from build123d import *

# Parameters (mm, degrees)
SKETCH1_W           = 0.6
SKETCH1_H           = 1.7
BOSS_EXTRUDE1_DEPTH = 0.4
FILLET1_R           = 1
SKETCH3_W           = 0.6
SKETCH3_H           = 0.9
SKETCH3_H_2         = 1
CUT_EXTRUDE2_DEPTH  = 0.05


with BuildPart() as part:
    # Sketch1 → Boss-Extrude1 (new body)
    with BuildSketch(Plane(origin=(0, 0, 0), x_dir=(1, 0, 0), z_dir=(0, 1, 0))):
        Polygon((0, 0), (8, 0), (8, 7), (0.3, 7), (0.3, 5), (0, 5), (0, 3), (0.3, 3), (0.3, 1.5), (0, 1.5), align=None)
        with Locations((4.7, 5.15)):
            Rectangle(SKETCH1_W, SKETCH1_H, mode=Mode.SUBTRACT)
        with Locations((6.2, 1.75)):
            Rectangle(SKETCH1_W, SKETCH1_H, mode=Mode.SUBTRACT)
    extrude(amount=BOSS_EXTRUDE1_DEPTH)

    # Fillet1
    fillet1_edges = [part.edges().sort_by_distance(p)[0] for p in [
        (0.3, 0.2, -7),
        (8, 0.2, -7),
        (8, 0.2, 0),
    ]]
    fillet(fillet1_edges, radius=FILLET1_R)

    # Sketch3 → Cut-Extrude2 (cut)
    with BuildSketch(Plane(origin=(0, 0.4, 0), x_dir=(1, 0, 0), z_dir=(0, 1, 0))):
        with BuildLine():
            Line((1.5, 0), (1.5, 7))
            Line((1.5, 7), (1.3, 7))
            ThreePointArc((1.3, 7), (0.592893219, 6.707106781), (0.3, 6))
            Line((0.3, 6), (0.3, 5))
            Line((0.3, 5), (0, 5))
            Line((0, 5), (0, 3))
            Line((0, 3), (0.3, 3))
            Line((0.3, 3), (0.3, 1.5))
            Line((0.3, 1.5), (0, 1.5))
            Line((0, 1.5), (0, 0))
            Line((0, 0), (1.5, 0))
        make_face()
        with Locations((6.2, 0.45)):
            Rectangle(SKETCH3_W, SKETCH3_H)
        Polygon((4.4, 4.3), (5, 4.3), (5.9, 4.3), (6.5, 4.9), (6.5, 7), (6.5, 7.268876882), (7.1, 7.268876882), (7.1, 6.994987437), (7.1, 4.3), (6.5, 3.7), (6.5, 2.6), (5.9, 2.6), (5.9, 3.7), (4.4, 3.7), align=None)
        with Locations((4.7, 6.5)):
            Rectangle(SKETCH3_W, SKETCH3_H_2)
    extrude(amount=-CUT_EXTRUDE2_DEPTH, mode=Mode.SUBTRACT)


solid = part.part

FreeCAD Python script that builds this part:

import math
import FreeCAD as App
import Part
import Sketcher
from FreeCAD import Vector
Q = App.Units.Quantity


def edges_at(feature, points):
    """Names of the edges that pass closest to the given points."""
    edges = feature.Shape.Edges
    near = lambda p: min(range(len(edges)), key=lambda i: edges[i].distToShape(Part.Vertex(*p))[0])
    return sorted({f"Edge{near(p) + 1}" for p in points})

doc = App.newDocument("Part")
body = doc.addObject("PartDesign::Body", "Body")

sketch1 = doc.addObject("Sketcher::SketchObject", "Sketch")
body.addObject(sketch1)
sketch1.AttachmentSupport = (doc.XZ_Plane, [""])
sketch1.MapMode = "FlatFace"
sketch1.addGeometry(Part.LineSegment(Vector(0, 0, 0), Vector(8, 0, 0)), False)
sketch1.addGeometry(Part.LineSegment(Vector(8, 0, 0), Vector(8, -7, 0)), False)
sketch1.addGeometry(Part.LineSegment(Vector(8, -7, 0), Vector(0.3, -7, 0)), False)
sketch1.addGeometry(Part.LineSegment(Vector(0.3, -7, 0), Vector(0.3, -5, 0)), False)
sketch1.addGeometry(Part.LineSegment(Vector(0.3, -5, 0), Vector(0, -5, 0)), False)
sketch1.addGeometry(Part.LineSegment(Vector(0, -5, 0), Vector(0, -3, 0)), False)
sketch1.addGeometry(Part.LineSegment(Vector(0, -3, 0), Vector(0.3, -3, 0)), False)
sketch1.addGeometry(Part.LineSegment(Vector(0.3, -3, 0), Vector(0.3, -1.5, 0)), False)
sketch1.addGeometry(Part.LineSegment(Vector(0.3, -1.5, 0), Vector(0, -1.5, 0)), False)
sketch1.addGeometry(Part.LineSegment(Vector(0, -1.5, 0), Vector(0, 0, 0)), False)
sketch1.addGeometry(Part.LineSegment(Vector(6.5, -0.9, 0), Vector(5.9, -0.9, 0)), False)
sketch1.addGeometry(Part.LineSegment(Vector(5.9, -0.9, 0), Vector(5.9, -2.6, 0)), False)
sketch1.addGeometry(Part.LineSegment(Vector(5.9, -2.6, 0), Vector(6.5, -2.6, 0)), False)
sketch1.addGeometry(Part.LineSegment(Vector(6.5, -2.6, 0), Vector(6.5, -0.9, 0)), False)
sketch1.addGeometry(Part.LineSegment(Vector(5, -4.3, 0), Vector(4.4, -4.3, 0)), False)
sketch1.addGeometry(Part.LineSegment(Vector(4.4, -4.3, 0), Vector(4.4, -6, 0)), False)
sketch1.addGeometry(Part.LineSegment(Vector(4.4, -6, 0), Vector(5, -6, 0)), False)
sketch1.addGeometry(Part.LineSegment(Vector(5, -6, 0), Vector(5, -4.3, 0)), False)
sketch1.addConstraint(Sketcher.Constraint("Coincident", 0, 2, 1, 1))
sketch1.addConstraint(Sketcher.Constraint("Coincident", 1, 2, 2, 1))
sketch1.addConstraint(Sketcher.Constraint("Coincident", 2, 2, 3, 1))
sketch1.addConstraint(Sketcher.Constraint("Coincident", 3, 2, 4, 1))
sketch1.addConstraint(Sketcher.Constraint("Coincident", 4, 2, 5, 1))
sketch1.addConstraint(Sketcher.Constraint("Coincident", 5, 2, 6, 1))
sketch1.addConstraint(Sketcher.Constraint("Coincident", 6, 2, 7, 1))
sketch1.addConstraint(Sketcher.Constraint("Coincident", 7, 2, 8, 1))
sketch1.addConstraint(Sketcher.Constraint("Coincident", 8, 2, 9, 1))
sketch1.addConstraint(Sketcher.Constraint("Coincident", 9, 2, 0, 1))
sketch1.addConstraint(Sketcher.Constraint("Coincident", 10, 2, 11, 1))
sketch1.addConstraint(Sketcher.Constraint("Coincident", 11, 2, 12, 1))
sketch1.addConstraint(Sketcher.Constraint("Coincident", 12, 2, 13, 1))
sketch1.addConstraint(Sketcher.Constraint("Coincident", 13, 2, 10, 1))
sketch1.addConstraint(Sketcher.Constraint("Coincident", 14, 2, 15, 1))
sketch1.addConstraint(Sketcher.Constraint("Coincident", 15, 2, 16, 1))
sketch1.addConstraint(Sketcher.Constraint("Coincident", 16, 2, 17, 1))
sketch1.addConstraint(Sketcher.Constraint("Coincident", 17, 2, 14, 1))
sketch1.addConstraint(Sketcher.Constraint("Horizontal", 0))
sketch1.addConstraint(Sketcher.Constraint("Vertical", 1))
sketch1.addConstraint(Sketcher.Constraint("Horizontal", 2))
sketch1.addConstraint(Sketcher.Constraint("Vertical", 3))
sketch1.addConstraint(Sketcher.Constraint("Horizontal", 4))
sketch1.addConstraint(Sketcher.Constraint("Vertical", 5))
sketch1.addConstraint(Sketcher.Constraint("Horizontal", 6))
sketch1.addConstraint(Sketcher.Constraint("Vertical", 7))
sketch1.addConstraint(Sketcher.Constraint("Horizontal", 8))
sketch1.addConstraint(Sketcher.Constraint("Vertical", 9))
sketch1.addConstraint(Sketcher.Constraint("Horizontal", 10))
sketch1.addConstraint(Sketcher.Constraint("Vertical", 11))
sketch1.addConstraint(Sketcher.Constraint("Horizontal", 12))
sketch1.addConstraint(Sketcher.Constraint("Vertical", 13))
sketch1.addConstraint(Sketcher.Constraint("Horizontal", 14))
sketch1.addConstraint(Sketcher.Constraint("Vertical", 15))
sketch1.addConstraint(Sketcher.Constraint("Horizontal", 16))
sketch1.addConstraint(Sketcher.Constraint("Vertical", 17))
sketch1.addConstraint(Sketcher.Constraint("Coincident", 9, 2, -1, 1))
sketch1.addConstraint(Sketcher.Constraint("PointOnObject", 4, 2, -2))
sketch1.addConstraint(Sketcher.Constraint("Vertical", 3, 2, 6, 2))
sketch1.addConstraint(Sketcher.Constraint("Equal", 12, 14))
sketch1.addConstraint(Sketcher.Constraint("Equal", 3, 5))
sketch1.addConstraint(Sketcher.Constraint("Equal", 7, 9))
sketch1.addConstraint(Sketcher.Constraint("Equal", 13, 15))
sketch1.addConstraint(Sketcher.Constraint("DistanceX", 0, 1, 0, 2, Q("8 mm")))
sketch1.addConstraint(Sketcher.Constraint("DistanceY", 1, 2, 1, 1, Q("7 mm")))
sketch1.addConstraint(Sketcher.Constraint("DistanceY", 3, 1, 3, 2, Q("2 mm")))
sketch1.addConstraint(Sketcher.Constraint("DistanceX", 2, 2, 2, 1, Q("7.7 mm")))
sketch1.addConstraint(Sketcher.Constraint("DistanceX", 10, 2, 10, 1, Q("0.6 mm")))
sketch1.addConstraint(Sketcher.Constraint("DistanceY", 11, 2, 11, 1, Q("1.7 mm")))
sketch1.addConstraint(Sketcher.Constraint("DistanceY", 15, 2, -1, 1, Q("6 mm")))
sketch1.addConstraint(Sketcher.Constraint("DistanceX", -1, 1, 16, 2, Q("5 mm")))
sketch1.addConstraint(Sketcher.Constraint("DistanceX", -1, 1, 10, 2, Q("5.9 mm")))
sketch1.addConstraint(Sketcher.Constraint("DistanceY", 10, 2, -1, 1, Q("0.9 mm")))
pad1 = doc.addObject("PartDesign::Pad", "Pad")
body.addObject(pad1)
pad1.Profile = sketch1
pad1.Length = 0.4
pad1.Reversed = True
doc.recompute()

fillet = doc.addObject("PartDesign::Fillet", "Fillet")
body.addObject(fillet)
fillet.Base = (pad1, edges_at(pad1, [(0.3, 0.2, -7), (8, 0.2, -7), (8, 0.2, 0)]))
fillet.Radius = 1

sketch2 = doc.addObject("Sketcher::SketchObject", "Sketch001")
body.addObject(sketch2)
sketch2.AttachmentSupport = (doc.XZ_Plane, [""])
sketch2.MapMode = "FlatFace"
sketch2.AttachmentOffset = App.Placement(Vector(0, 0, -0.4), App.Rotation())
sketch2.addGeometry(Part.LineSegment(Vector(1.5, 0, 0), Vector(1.5, -7, 0)), False)
sketch2.addGeometry(Part.LineSegment(Vector(1.5, -7, 0), Vector(1.3, -7, 0)), False)
sketch2.addGeometry(Part.ArcOfCircle(Part.Circle(Vector(1.3, -6, 0), Vector(0, 0, 1), 1), math.radians(-180), math.radians(-90)), False)
sketch2.addGeometry(Part.LineSegment(Vector(0.3, -6, 0), Vector(0.3, -5, 0)), False)
sketch2.addGeometry(Part.LineSegment(Vector(0.3, -5, 0), Vector(0, -5, 0)), False)
sketch2.addGeometry(Part.LineSegment(Vector(0, -5, 0), Vector(0, -3, 0)), False)
sketch2.addGeometry(Part.LineSegment(Vector(0, -3, 0), Vector(0.3, -3, 0)), False)
sketch2.addGeometry(Part.LineSegment(Vector(0.3, -3, 0), Vector(0.3, -1.5, 0)), False)
sketch2.addGeometry(Part.LineSegment(Vector(0.3, -1.5, 0), Vector(0, -1.5, 0)), False)
sketch2.addGeometry(Part.LineSegment(Vector(0, -1.5, 0), Vector(0, 0, 0)), False)
sketch2.addGeometry(Part.LineSegment(Vector(0, 0, 0), Vector(1.5, 0, 0)), False)
sketch2.addGeometry(Part.LineSegment(Vector(5.9, -0.9, 0), Vector(5.9, 0, 0)), False)
sketch2.addGeometry(Part.LineSegment(Vector(5.9, 0, 0), Vector(6.5, 0, 0)), False)
sketch2.addGeometry(Part.LineSegment(Vector(6.5, 0, 0), Vector(6.5, -0.9, 0)), False)
sketch2.addGeometry(Part.LineSegment(Vector(6.5, -0.9, 0), Vector(5.9, -0.9, 0)), False)
sketch2.addGeometry(Part.LineSegment(Vector(5.9, -4.3, 0), Vector(4.4, -4.3, 0)), False)
sketch2.addGeometry(Part.LineSegment(Vector(4.4, -4.3, 0), Vector(4.4, -3.7, 0)), False)
sketch2.addGeometry(Part.LineSegment(Vector(4.4, -3.7, 0), Vector(5.9, -3.7, 0)), False)
sketch2.addGeometry(Part.LineSegment(Vector(5.9, -3.7, 0), Vector(5.9, -2.6, 0)), False)
sketch2.addGeometry(Part.LineSegment(Vector(5.9, -2.6, 0), Vector(6.5, -2.6, 0)), False)
sketch2.addGeometry(Part.LineSegment(Vector(6.5, -2.6, 0), Vector(6.5, -3.7, 0)), False)
sketch2.addGeometry(Part.LineSegment(Vector(6.5, -3.7, 0), Vector(7.1, -4.3, 0)), False)
sketch2.addGeometry(Part.LineSegment(Vector(7.1, -4.3, 0), Vector(7.1, -7.268877, 0)), False)
sketch2.addGeometry(Part.LineSegment(Vector(7.1, -7.268877, 0), Vector(6.5, -7.268877, 0)), False)
sketch2.addGeometry(Part.LineSegment(Vector(6.5, -7.268877, 0), Vector(6.5, -4.9, 0)), False)
sketch2.addGeometry(Part.LineSegment(Vector(6.5, -4.9, 0), Vector(5.9, -4.3, 0)), False)
sketch2.addGeometry(Part.LineSegment(Vector(4.4, -7, 0), Vector(4.4, -6, 0)), False)
sketch2.addGeometry(Part.LineSegment(Vector(4.4, -6, 0), Vector(5, -6, 0)), False)
sketch2.addGeometry(Part.LineSegment(Vector(5, -6, 0), Vector(5, -7, 0)), False)
sketch2.addGeometry(Part.LineSegment(Vector(5, -7, 0), Vector(4.4, -7, 0)), False)
sketch2.addConstraint(Sketcher.Constraint("Coincident", 0, 2, 1, 1))
sketch2.addConstraint(Sketcher.Constraint("Tangent", 1, 2, 2, 2))
sketch2.addConstraint(Sketcher.Constraint("Tangent", 2, 1, 3, 1))
sketch2.addConstraint(Sketcher.Constraint("Coincident", 3, 2, 4, 1))
sketch2.addConstraint(Sketcher.Constraint("Coincident", 4, 2, 5, 1))
sketch2.addConstraint(Sketcher.Constraint("Coincident", 5, 2, 6, 1))
sketch2.addConstraint(Sketcher.Constraint("Coincident", 6, 2, 7, 1))
sketch2.addConstraint(Sketcher.Constraint("Coincident", 7, 2, 8, 1))
sketch2.addConstraint(Sketcher.Constraint("Coincident", 8, 2, 9, 1))
sketch2.addConstraint(Sketcher.Constraint("Coincident", 9, 2, 10, 1))
sketch2.addConstraint(Sketcher.Constraint("Coincident", 10, 2, 0, 1))
sketch2.addConstraint(Sketcher.Constraint("Coincident", 11, 2, 12, 1))
sketch2.addConstraint(Sketcher.Constraint("Coincident", 12, 2, 13, 1))
sketch2.addConstraint(Sketcher.Constraint("Coincident", 13, 2, 14, 1))
sketch2.addConstraint(Sketcher.Constraint("Coincident", 14, 2, 11, 1))
sketch2.addConstraint(Sketcher.Constraint("Coincident", 15, 2, 16, 1))
sketch2.addConstraint(Sketcher.Constraint("Coincident", 16, 2, 17, 1))
sketch2.addConstraint(Sketcher.Constraint("Coincident", 17, 2, 18, 1))
sketch2.addConstraint(Sketcher.Constraint("Coincident", 18, 2, 19, 1))
sketch2.addConstraint(Sketcher.Constraint("Coincident", 19, 2, 20, 1))
sketch2.addConstraint(Sketcher.Constraint("Coincident", 20, 2, 21, 1))
sketch2.addConstraint(Sketcher.Constraint("Coincident", 21, 2, 22, 1))
sketch2.addConstraint(Sketcher.Constraint("Coincident", 22, 2, 23, 1))
sketch2.addConstraint(Sketcher.Constraint("Coincident", 23, 2, 24, 1))
sketch2.addConstraint(Sketcher.Constraint("Coincident", 24, 2, 25, 1))
sketch2.addConstraint(Sketcher.Constraint("Coincident", 25, 2, 15, 1))
sketch2.addConstraint(Sketcher.Constraint("Coincident", 26, 2, 27, 1))
sketch2.addConstraint(Sketcher.Constraint("Coincident", 27, 2, 28, 1))
sketch2.addConstraint(Sketcher.Constraint("Coincident", 28, 2, 29, 1))
sketch2.addConstraint(Sketcher.Constraint("Coincident", 29, 2, 26, 1))
sketch2.addConstraint(Sketcher.Constraint("Vertical", 0))
sketch2.addConstraint(Sketcher.Constraint("Horizontal", 1))
sketch2.addConstraint(Sketcher.Constraint("Vertical", 3))
sketch2.addConstraint(Sketcher.Constraint("Horizontal", 4))
sketch2.addConstraint(Sketcher.Constraint("Vertical", 5))
sketch2.addConstraint(Sketcher.Constraint("Horizontal", 6))
sketch2.addConstraint(Sketcher.Constraint("Vertical", 7))
sketch2.addConstraint(Sketcher.Constraint("Horizontal", 8))
sketch2.addConstraint(Sketcher.Constraint("Vertical", 9))
sketch2.addConstraint(Sketcher.Constraint("Horizontal", 10))
sketch2.addConstraint(Sketcher.Constraint("Vertical", 11))
sketch2.addConstraint(Sketcher.Constraint("Horizontal", 12))
sketch2.addConstraint(Sketcher.Constraint("Vertical", 13))
sketch2.addConstraint(Sketcher.Constraint("Horizontal", 14))
sketch2.addConstraint(Sketcher.Constraint("Horizontal", 15))
sketch2.addConstraint(Sketcher.Constraint("Vertical", 16))
sketch2.addConstraint(Sketcher.Constraint("Horizontal", 17))
sketch2.addConstraint(Sketcher.Constraint("Vertical", 18))
sketch2.addConstraint(Sketcher.Constraint("Horizontal", 19))
sketch2.addConstraint(Sketcher.Constraint("Vertical", 20))
sketch2.addConstraint(Sketcher.Constraint("Vertical", 22))
sketch2.addConstraint(Sketcher.Constraint("Horizontal", 23))
sketch2.addConstraint(Sketcher.Constraint("Vertical", 24))
sketch2.addConstraint(Sketcher.Constraint("Vertical", 26))
sketch2.addConstraint(Sketcher.Constraint("Horizontal", 27))
sketch2.addConstraint(Sketcher.Constraint("Vertical", 28))
sketch2.addConstraint(Sketcher.Constraint("Horizontal", 29))
sketch2.addConstraint(Sketcher.Constraint("Coincident", 9, 2, -1, 1))
sketch2.addConstraint(Sketcher.Constraint("PointOnObject", 4, 2, -2))
sketch2.addConstraint(Sketcher.Constraint("PointOnObject", 11, 2, -1))
sketch2.addConstraint(Sketcher.Constraint("Parallel", 21, 25))
sketch2.addConstraint(Sketcher.Constraint("Horizontal", 17, 2, 20, 2))
sketch2.addConstraint(Sketcher.Constraint("Horizontal", 15, 2, 21, 2))
sketch2.addConstraint(Sketcher.Constraint("Horizontal", 2, 1, 26, 2))
sketch2.addConstraint(Sketcher.Constraint("Horizontal", 1, 2, 28, 2))
sketch2.addConstraint(Sketcher.Constraint("Vertical", 3, 2, 6, 2))
sketch2.addConstraint(Sketcher.Constraint("Vertical", 14, 2, 17, 2))
sketch2.addConstraint(Sketcher.Constraint("Vertical", 13, 2, 19, 2))
sketch2.addConstraint(Sketcher.Constraint("Vertical", 20, 2, 23, 2))
sketch2.addConstraint(Sketcher.Constraint("Vertical", 18, 2, 25, 2))
sketch2.addConstraint(Sketcher.Constraint("Vertical", 16, 2, 26, 2))
sketch2.addConstraint(Sketcher.Constraint("Equal", 10, 15))
sketch2.addConstraint(Sketcher.Constraint("Equal", 19, 23))
sketch2.addConstraint(Sketcher.Constraint("Equal", 23, 27))
sketch2.addConstraint(Sketcher.Constraint("Equal", 17, 7))
sketch2.addConstraint(Sketcher.Constraint("Equal", 7, 9))
sketch2.addConstraint(Sketcher.Constraint("Equal", 29, 16))
sketch2.addConstraint(Sketcher.Constraint("Equal", 3, 26))
sketch2.addConstraint(Sketcher.Constraint("Radius", 2, Q("1 mm")))
sketch2.addConstraint(Sketcher.Constraint("DistanceY", 0, 2, 0, 1, Q("7 mm")))
sketch2.addConstraint(Sketcher.Constraint("DistanceY", 5, 1, 5, 2, Q("2 mm")))
sketch2.addConstraint(Sketcher.Constraint("DistanceX", 1, 2, 1, 1, Q("0.2 mm")))
sketch2.addConstraint(Sketcher.Constraint("DistanceX", 12, 1, 12, 2, Q("0.6 mm")))
sketch2.addConstraint(Sketcher.Constraint("DistanceY", 11, 1, 11, 2, Q("0.9 mm")))
sketch2.addConstraint(Sketcher.Constraint("DistanceY", 18, 1, 18, 2, Q("1.1 mm")))
sketch2.addConstraint(Sketcher.Constraint("DistanceX", -1, 1, 27, 2, Q("5 mm")))
sketch2.addConstraint(Sketcher.Constraint("DistanceY", 15, 2, -1, 1, Q("4.3 mm")))
sketch2.addConstraint(Sketcher.Constraint("DistanceY", 22, 2, 22, 1, Q("2.968877 mm")))
pocket1 = doc.addObject("PartDesign::Pocket", "Pocket")
body.addObject(pocket1)
pocket1.Profile = sketch2
pocket1.Length = 0.05
pocket1.Reversed = True

doc.recompute()
